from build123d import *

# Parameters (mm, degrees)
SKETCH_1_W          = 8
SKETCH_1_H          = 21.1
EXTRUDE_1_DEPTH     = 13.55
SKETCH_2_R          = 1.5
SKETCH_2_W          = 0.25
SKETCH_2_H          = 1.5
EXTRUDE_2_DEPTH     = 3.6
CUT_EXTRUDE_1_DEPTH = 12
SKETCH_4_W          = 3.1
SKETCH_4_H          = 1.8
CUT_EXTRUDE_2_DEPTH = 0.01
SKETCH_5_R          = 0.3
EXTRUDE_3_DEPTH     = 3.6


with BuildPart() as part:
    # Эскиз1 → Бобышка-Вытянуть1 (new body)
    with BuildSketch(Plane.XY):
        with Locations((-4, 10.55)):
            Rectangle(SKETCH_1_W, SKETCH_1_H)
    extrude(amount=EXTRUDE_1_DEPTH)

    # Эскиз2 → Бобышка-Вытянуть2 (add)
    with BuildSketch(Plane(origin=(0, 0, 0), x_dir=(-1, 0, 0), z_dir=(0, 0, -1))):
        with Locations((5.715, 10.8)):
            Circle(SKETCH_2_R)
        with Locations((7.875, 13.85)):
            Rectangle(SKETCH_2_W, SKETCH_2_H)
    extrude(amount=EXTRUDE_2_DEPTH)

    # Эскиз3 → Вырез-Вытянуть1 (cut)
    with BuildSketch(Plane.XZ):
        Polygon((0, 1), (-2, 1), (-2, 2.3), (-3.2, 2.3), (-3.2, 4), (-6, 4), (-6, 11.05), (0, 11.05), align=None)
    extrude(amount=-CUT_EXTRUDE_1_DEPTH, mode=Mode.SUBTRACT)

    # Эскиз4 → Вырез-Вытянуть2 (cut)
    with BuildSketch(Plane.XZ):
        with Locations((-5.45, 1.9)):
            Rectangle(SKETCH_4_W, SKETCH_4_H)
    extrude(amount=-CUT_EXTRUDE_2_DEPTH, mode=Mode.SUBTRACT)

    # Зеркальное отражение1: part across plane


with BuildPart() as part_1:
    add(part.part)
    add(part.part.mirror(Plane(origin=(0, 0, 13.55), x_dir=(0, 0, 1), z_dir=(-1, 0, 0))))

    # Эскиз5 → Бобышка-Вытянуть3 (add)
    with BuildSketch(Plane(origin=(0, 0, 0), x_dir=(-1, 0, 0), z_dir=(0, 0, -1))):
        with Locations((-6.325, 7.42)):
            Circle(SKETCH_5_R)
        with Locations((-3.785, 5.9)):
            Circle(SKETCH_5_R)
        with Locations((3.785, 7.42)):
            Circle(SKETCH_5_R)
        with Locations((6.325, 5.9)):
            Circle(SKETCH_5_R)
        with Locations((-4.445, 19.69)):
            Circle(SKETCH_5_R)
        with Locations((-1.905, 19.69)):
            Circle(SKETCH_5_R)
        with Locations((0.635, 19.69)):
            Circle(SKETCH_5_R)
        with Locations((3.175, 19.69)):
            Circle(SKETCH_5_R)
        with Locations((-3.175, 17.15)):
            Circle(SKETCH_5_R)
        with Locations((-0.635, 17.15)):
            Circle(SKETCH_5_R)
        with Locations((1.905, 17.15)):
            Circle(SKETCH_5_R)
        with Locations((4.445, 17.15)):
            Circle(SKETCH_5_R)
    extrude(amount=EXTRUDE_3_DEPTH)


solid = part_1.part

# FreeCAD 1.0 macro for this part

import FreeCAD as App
import Part
import Sketcher
from FreeCAD import Vector

doc = App.newDocument("Part")
params = doc.addObject("Spreadsheet::Sheet", "Params")
for row, (alias, value) in enumerate([
    ("sketch1_width", "8 mm"),
    ("sketch1_height", "21.1 mm"),
    ("pad1_length", "13.55 mm"),
    ("sketch2_diameter", "3 mm"),
    ("sketch2_height", "1.5 mm"),
    ("sketch2_width", "0.25 mm"),
    ("pad2_length", "3.6 mm"),
    ("sketch3_width", "2 mm"),
    ("sketch3_width2", "6 mm"),
    ("sketch3_width3", "2.8 mm"),
    ("sketch3_height", "1.7 mm"),
    ("sketch3_height2", "1.3 mm"),
    ("pocket1_length", "12 mm"),
    ("sketch4_width", "3.1 mm"),
    ("sketch4_height", "1.8 mm"),
    ("pocket2_length", "0.01 mm"),
    ("sketch5_diameter", "0.6 mm"),
    ("pad3_length", "3.6 mm"),
], start=1):
    params.set(f"A{row}", alias)
    params.set(f"B{row}", "=" + value)
    params.setAlias(f"B{row}", alias)

body = doc.addObject("PartDesign::Body", "Body")

# Sketch on XY plane
sketch1 = body.newObject("Sketcher::SketchObject", "Sketch")
sketch1.AttachmentSupport = (doc.getObject("XY_Plane"), [""])
sketch1.MapMode = "FlatFace"
sketch1.addGeometry([
    Part.LineSegment(Vector(-8, 21, 0), Vector(-8, 0, 0)),
    Part.LineSegment(Vector(-8, 0, 0), Vector(0, 0, 0)),
    Part.LineSegment(Vector(0, 0, 0), Vector(0, 21, 0)),
    Part.LineSegment(Vector(0, 21, 0), Vector(-8, 21, 0)),
], False)
sketch1.addConstraint([
    Sketcher.Constraint("Coincident", 0, 2, 1, 1),
    Sketcher.Constraint("Coincident", 1, 2, 2, 1),
    Sketcher.Constraint("Coincident", 2, 2, 3, 1),
    Sketcher.Constraint("Coincident", 3, 2, 0, 1),
    Sketcher.Constraint("Vertical", 0),
    Sketcher.Constraint("Horizontal", 1),
    Sketcher.Constraint("Vertical", 2),
    Sketcher.Constraint("Horizontal", 3),
    Sketcher.Constraint("Coincident", 1, 2, -1, 1),
    Sketcher.Constraint("DistanceX", 1, 1, 1, 2, 8.0),
    Sketcher.Constraint("DistanceY", 0, 2, 0, 1, 21.1),
])
sketch1.setExpression("Constraints[9]", "Params.sketch1_width")
sketch1.setExpression("Constraints[10]", "Params.sketch1_height")
pad1 = body.newObject("PartDesign::Pad", "Pad")
pad1.Profile = sketch1
pad1.setExpression("Length", "Params.pad1_length")

# Sketch on XY plane
sketch2 = body.newObject("Sketcher::SketchObject", "Sketch001")
sketch2.AttachmentSupport = (doc.getObject("XY_Plane"), [""])
sketch2.MapMode = "FlatFace"
sketch2.addGeometry([
    Part.Circle(Vector(-5.71, 10.8, 0), Vector(0, 0, 1), 1.5),  # 0
    Part.LineSegment(Vector(-7.75, 14.6, 0), Vector(-7.75, 13.1, 0)),  # 1
    Part.LineSegment(Vector(-7.75, 13.1, 0), Vector(-8, 13.1, 0)),  # 2
    Part.LineSegment(Vector(-8, 13.1, 0), Vector(-8, 14.6, 0)),  # 3
    Part.LineSegment(Vector(-8, 14.6, 0), Vector(-7.75, 14.6, 0)),  # 4
], False)
sketch2.addConstraint([
    Sketcher.Constraint("Coincident", 1, 2, 2, 1),
    Sketcher.Constraint("Coincident", 2, 2, 3, 1),
    Sketcher.Constraint("Coincident", 3, 2, 4, 1),
    Sketcher.Constraint("Coincident", 4, 2, 1, 1),
    Sketcher.Constraint("Vertical", 1),
    Sketcher.Constraint("Horizontal", 2),
    Sketcher.Constraint("Vertical", 3),
    Sketcher.Constraint("Horizontal", 4),
    Sketcher.Constraint("Diameter", 0, 3.0),
    Sketcher.Constraint("DistanceY", 1, 2, 1, 1, 1.5),
    Sketcher.Constraint("DistanceX", 2, 2, -1, 1, 8.0),
    Sketcher.Constraint("DistanceX", 2, 2, 2, 1, 0.25),
    Sketcher.Constraint("DistanceY", -1, 1, 0, 3, 10.8),
    Sketcher.Constraint("DistanceY", -1, 1, 1, 2, 13.1),
    Sketcher.Constraint("DistanceX", 0, 3, -1, 1, 5.715),
])
sketch2.setExpression("Constraints[8]", "Params.sketch2_diameter")
sketch2.setExpression("Constraints[9]", "Params.sketch2_height")
sketch2.setExpression("Constraints[11]", "Params.sketch2_width")
pad2 = body.newObject("PartDesign::Pad", "Pad001")
pad2.Profile = sketch2
pad2.setExpression("Length", "Params.pad2_length")
pad2.Reversed = True

# Sketch on XZ plane
sketch3 = body.newObject("Sketcher::SketchObject", "Sketch002")
sketch3.AttachmentSupport = (doc.getObject("XZ_Plane"), [""])
sketch3.MapMode = "FlatFace"
sketch3.addGeometry([
    Part.LineSegment(Vector(-2, 1, 0), Vector(0, 1, 0)),  # 0
    Part.LineSegment(Vector(0, 1, 0), Vector(0, 11.1, 0)),  # 1
    Part.LineSegment(Vector(0, 11.1, 0), Vector(-6, 11.1, 0)),  # 2
    Part.LineSegment(Vector(-6, 11.1, 0), Vector(-6, 4, 0)),  # 3
    Part.LineSegment(Vector(-6, 4, 0), Vector(-3.2, 4, 0)),  # 4
    Part.LineSegment(Vector(-3.2, 4, 0), Vector(-3.2, 2.3, 0)),  # 5
    Part.LineSegment(Vector(-3.2, 2.3, 0), Vector(-2, 2.3, 0)),  # 6
    Part.LineSegment(Vector(-2, 2.3, 0), Vector(-2, 1, 0)),  # 7
], False)
sketch3.addConstraint([
    Sketcher.Constraint("Coincident", 0, 2, 1, 1),
    Sketcher.Constraint("Coincident", 1, 2, 2, 1),
    Sketcher.Constraint("Coincident", 2, 2, 3, 1),
    Sketcher.Constraint("Coincident", 3, 2, 4, 1),
    Sketcher.Constraint("Coincident", 4, 2, 5, 1),
    Sketcher.Constraint("Coincident", 5, 2, 6, 1),
    Sketcher.Constraint("Coincident", 6, 2, 7, 1),
    Sketcher.Constraint("Coincident", 7, 2, 0, 1),
    Sketcher.Constraint("Horizontal", 0),
    Sketcher.Constraint("Vertical", 1),
    Sketcher.Constraint("Horizontal", 2),
    Sketcher.Constraint("Vertical", 3),
    Sketcher.Constraint("Horizontal", 4),
    Sketcher.Constraint("Vertical", 5),
    Sketcher.Constraint("Horizontal", 6),
    Sketcher.Constraint("Vertical", 7),
    Sketcher.Constraint("PointOnObject", 0, 2, -2),
    Sketcher.Constraint("DistanceX", 0, 1, 0, 2, 2.0),
    Sketcher.Constraint("DistanceX", 2, 2, 2, 1, 6.0),
    Sketcher.Constraint("DistanceX", 4, 1, 4, 2, 2.8),
    Sketcher.Constraint("DistanceY", 5, 2, 5, 1, 1.7),
    Sketcher.Constraint("DistanceY", 7, 2, 7, 1, 1.3),
    Sketcher.Constraint("DistanceY", -1, 1, 0, 2, 1.0),
    Sketcher.Constraint("DistanceY", 1, 1, 1, 2, 10.05),
])
sketch3.setExpression("Constraints[17]", "Params.sketch3_width")
sketch3.setExpression("Constraints[18]", "Params.sketch3_width2")
sketch3.setExpression("Constraints[19]", "Params.sketch3_width3")
sketch3.setExpression("Constraints[20]", "Params.sketch3_height")
sketch3.setExpression("Constraints[21]", "Params.sketch3_height2")
pocket1 = body.newObject("PartDesign::Pocket", "Pocket")
pocket1.Profile = sketch3
pocket1.setExpression("Length", "Params.pocket1_length")

# Sketch on XZ plane
sketch4 = body.newObject("Sketcher::SketchObject", "Sketch003")
sketch4.AttachmentSupport = (doc.getObject("XZ_Plane"), [""])
sketch4.MapMode = "FlatFace"
sketch4.addGeometry([
    Part.LineSegment(Vector(-7, 2.8, 0), Vector(-7, 1, 0)),
    Part.LineSegment(Vector(-7, 1, 0), Vector(-3.9, 1, 0)),
    Part.LineSegment(Vector(-3.9, 1, 0), Vector(-3.9, 2.8, 0)),
    Part.LineSegment(Vector(-3.9, 2.8, 0), Vector(-7, 2.8, 0)),
], False)
sketch4.addConstraint([
    Sketcher.Constraint("Coincident", 0, 2, 1, 1),
    Sketcher.Constraint("Coincident", 1, 2, 2, 1),
    Sketcher.Constraint("Coincident", 2, 2, 3, 1),
    Sketcher.Constraint("Coincident", 3, 2, 0, 1),
    Sketcher.Constraint("Vertical", 0),
    Sketcher.Constraint("Horizontal", 1),
    Sketcher.Constraint("Vertical", 2),
    Sketcher.Constraint("Horizontal", 3),
    Sketcher.Constraint("DistanceX", 1, 1, 1, 2, 3.1),
    Sketcher.Constraint("DistanceY", 0, 2, 0, 1, 1.8),
    Sketcher.Constraint("DistanceX", 0, 2, -1, 1, 7.0),
    Sketcher.Constraint("DistanceY", -1, 1, 0, 2, 1.0),
])
sketch4.setExpression("Constraints[8]", "Params.sketch4_width")
sketch4.setExpression("Constraints[9]", "Params.sketch4_height")
pocket2 = body.newObject("PartDesign::Pocket", "Pocket001")
pocket2.Profile = sketch4
pocket2.setExpression("Length", "Params.pocket2_length")
body2 = doc.addObject("PartDesign::Body", "Body001")
doc.recompute()

body2.BaseFeature = body
doc.recompute()

mirroring = doc.addObject("Part::Mirroring", "Mirroring")
mirroring.Source = body
mirroring.Base = Vector(0, 0, 13.55)
mirroring.Normal = Vector(-1, 0, 0)
body3 = doc.addObject("PartDesign::Body", "Body002")
body3.BaseFeature = mirroring
boolean = body2.newObject("PartDesign::Boolean", "Boolean")
boolean.Type = "Fuse"
boolean.addObjects([body3])
doc.recompute()

# Sketch on XY plane
sketch5 = body2.newObject("Sketcher::SketchObject", "Sketch004")
sketch5.AttachmentSupport = (doc.getObject("XY_Plane001"), [""])
sketch5.MapMode = "FlatFace"
sketch5.addGeometry([
    Part.Circle(Vector(6.33, 7.42, 0), Vector(0, 0, 1), 0.3),  # 0
    Part.Circle(Vector(3.79, 5.9, 0), Vector(0, 0, 1), 0.3),  # 1
    Part.Circle(Vector(-3.79, 7.42, 0), Vector(0, 0, 1), 0.3),  # 2
    Part.Circle(Vector(-6.33, 5.9, 0), Vector(0, 0, 1), 0.3),  # 3
    Part.Circle(Vector(4.45, 19.69, 0), Vector(0, 0, 1), 0.3),  # 4
    Part.Circle(Vector(1.91, 19.69, 0), Vector(0, 0, 1), 0.3),  # 5
    Part.Circle(Vector(-0.64, 19.69, 0), Vector(0, 0, 1), 0.3),  # 6
    Part.Circle(Vector(-3.17, 19.69, 0), Vector(0, 0, 1), 0.3),  # 7
    Part.Circle(Vector(3.17, 17.15, 0), Vector(0, 0, 1), 0.3),  # 8
    Part.Circle(Vector(0.64, 17.15, 0), Vector(0, 0, 1), 0.3),  # 9
    Part.Circle(Vector(-1.91, 17.15, 0), Vector(0, 0, 1), 0.3),  # 10
    Part.Circle(Vector(-4.45, 17.15, 0), Vector(0, 0, 1), 0.3),  # 11
], False)
sketch5.addConstraint([
    Sketcher.Constraint("Equal", 0, 1),
    Sketcher.Constraint("Equal", 1, 2),
    Sketcher.Constraint("Equal", 2, 3),
    Sketcher.Constraint("Equal", 3, 4),
    Sketcher.Constraint("Equal", 4, 5),
    Sketcher.Constraint("Equal", 5, 6),
    Sketcher.Constraint("Equal", 6, 7),
    Sketcher.Constraint("Equal", 7, 8),
    Sketcher.Constraint("Equal", 8, 9),
    Sketcher.Constraint("Equal", 9, 10),
    Sketcher.Constraint("Equal", 10, 11),
    Sketcher.Constraint("Horizontal", 0, 3, 2, 3),
    Sketcher.Constraint("Horizontal", 1, 3, 3, 3),
    Sketcher.Constraint("Horizontal", 4, 3, 5, 3),
    Sketcher.Constraint("Horizontal", 5, 3, 6, 3),
    Sketcher.Constraint("Horizontal", 6, 3, 7, 3),
    Sketcher.Constraint("Horizontal", 8, 3, 9, 3),
    Sketcher.Constraint("Horizontal", 9, 3, 10, 3),
    Sketcher.Constraint("Horizontal", 10, 3, 11, 3),
    Sketcher.Constraint("Diameter", 0, 0.6),
    Sketcher.Constraint("DistanceY", -1, 1, 1, 3, 5.9),
    Sketcher.Constraint("DistanceY", -1, 1, 0, 3, 7.42),
    Sketcher.Constraint("DistanceY", -1, 1, 4, 3, 19.69),
    Sketcher.Constraint("DistanceY", -1, 1, 8, 3, 17.15),
    Sketcher.Constraint("DistanceX", 1, 3, 0, 3, 2.54),
    Sketcher.Constraint("DistanceX", 2, 3, 1, 3, 7.57),
    Sketcher.Constraint("DistanceX", 3, 3, 2, 3, 2.54),
    Sketcher.Constraint("DistanceX", 4, 3, 0, 3, 1.88),
    Sketcher.Constraint("DistanceX", 5, 3, 4, 3, 2.54),
    Sketcher.Constraint("DistanceX", 6, 3, 5, 3, 2.54),
    Sketcher.Constraint("DistanceX", 7, 3, 6, 3, 2.54),
    Sketcher.Constraint("DistanceX", 5, 3, 8, 3, 1.27),
    Sketcher.Constraint("DistanceX", 9, 3, 8, 3, 2.54),
    Sketcher.Constraint("DistanceX", 10, 3, 9, 3, 2.54),
    Sketcher.Constraint("DistanceX", 11, 3, 10, 3, 2.54),
    Sketcher.Constraint("DistanceX", -1, 1, 0, 3, 6.325),
])
sketch5.setExpression("Constraints[19]", "Params.sketch5_diameter")
pad3 = body2.newObject("PartDesign::Pad", "Pad002")
pad3.Profile = sketch5
pad3.setExpression("Length", "Params.pad3_length")
pad3.Reversed = True
mirroring.Visibility = False

doc.recompute()
